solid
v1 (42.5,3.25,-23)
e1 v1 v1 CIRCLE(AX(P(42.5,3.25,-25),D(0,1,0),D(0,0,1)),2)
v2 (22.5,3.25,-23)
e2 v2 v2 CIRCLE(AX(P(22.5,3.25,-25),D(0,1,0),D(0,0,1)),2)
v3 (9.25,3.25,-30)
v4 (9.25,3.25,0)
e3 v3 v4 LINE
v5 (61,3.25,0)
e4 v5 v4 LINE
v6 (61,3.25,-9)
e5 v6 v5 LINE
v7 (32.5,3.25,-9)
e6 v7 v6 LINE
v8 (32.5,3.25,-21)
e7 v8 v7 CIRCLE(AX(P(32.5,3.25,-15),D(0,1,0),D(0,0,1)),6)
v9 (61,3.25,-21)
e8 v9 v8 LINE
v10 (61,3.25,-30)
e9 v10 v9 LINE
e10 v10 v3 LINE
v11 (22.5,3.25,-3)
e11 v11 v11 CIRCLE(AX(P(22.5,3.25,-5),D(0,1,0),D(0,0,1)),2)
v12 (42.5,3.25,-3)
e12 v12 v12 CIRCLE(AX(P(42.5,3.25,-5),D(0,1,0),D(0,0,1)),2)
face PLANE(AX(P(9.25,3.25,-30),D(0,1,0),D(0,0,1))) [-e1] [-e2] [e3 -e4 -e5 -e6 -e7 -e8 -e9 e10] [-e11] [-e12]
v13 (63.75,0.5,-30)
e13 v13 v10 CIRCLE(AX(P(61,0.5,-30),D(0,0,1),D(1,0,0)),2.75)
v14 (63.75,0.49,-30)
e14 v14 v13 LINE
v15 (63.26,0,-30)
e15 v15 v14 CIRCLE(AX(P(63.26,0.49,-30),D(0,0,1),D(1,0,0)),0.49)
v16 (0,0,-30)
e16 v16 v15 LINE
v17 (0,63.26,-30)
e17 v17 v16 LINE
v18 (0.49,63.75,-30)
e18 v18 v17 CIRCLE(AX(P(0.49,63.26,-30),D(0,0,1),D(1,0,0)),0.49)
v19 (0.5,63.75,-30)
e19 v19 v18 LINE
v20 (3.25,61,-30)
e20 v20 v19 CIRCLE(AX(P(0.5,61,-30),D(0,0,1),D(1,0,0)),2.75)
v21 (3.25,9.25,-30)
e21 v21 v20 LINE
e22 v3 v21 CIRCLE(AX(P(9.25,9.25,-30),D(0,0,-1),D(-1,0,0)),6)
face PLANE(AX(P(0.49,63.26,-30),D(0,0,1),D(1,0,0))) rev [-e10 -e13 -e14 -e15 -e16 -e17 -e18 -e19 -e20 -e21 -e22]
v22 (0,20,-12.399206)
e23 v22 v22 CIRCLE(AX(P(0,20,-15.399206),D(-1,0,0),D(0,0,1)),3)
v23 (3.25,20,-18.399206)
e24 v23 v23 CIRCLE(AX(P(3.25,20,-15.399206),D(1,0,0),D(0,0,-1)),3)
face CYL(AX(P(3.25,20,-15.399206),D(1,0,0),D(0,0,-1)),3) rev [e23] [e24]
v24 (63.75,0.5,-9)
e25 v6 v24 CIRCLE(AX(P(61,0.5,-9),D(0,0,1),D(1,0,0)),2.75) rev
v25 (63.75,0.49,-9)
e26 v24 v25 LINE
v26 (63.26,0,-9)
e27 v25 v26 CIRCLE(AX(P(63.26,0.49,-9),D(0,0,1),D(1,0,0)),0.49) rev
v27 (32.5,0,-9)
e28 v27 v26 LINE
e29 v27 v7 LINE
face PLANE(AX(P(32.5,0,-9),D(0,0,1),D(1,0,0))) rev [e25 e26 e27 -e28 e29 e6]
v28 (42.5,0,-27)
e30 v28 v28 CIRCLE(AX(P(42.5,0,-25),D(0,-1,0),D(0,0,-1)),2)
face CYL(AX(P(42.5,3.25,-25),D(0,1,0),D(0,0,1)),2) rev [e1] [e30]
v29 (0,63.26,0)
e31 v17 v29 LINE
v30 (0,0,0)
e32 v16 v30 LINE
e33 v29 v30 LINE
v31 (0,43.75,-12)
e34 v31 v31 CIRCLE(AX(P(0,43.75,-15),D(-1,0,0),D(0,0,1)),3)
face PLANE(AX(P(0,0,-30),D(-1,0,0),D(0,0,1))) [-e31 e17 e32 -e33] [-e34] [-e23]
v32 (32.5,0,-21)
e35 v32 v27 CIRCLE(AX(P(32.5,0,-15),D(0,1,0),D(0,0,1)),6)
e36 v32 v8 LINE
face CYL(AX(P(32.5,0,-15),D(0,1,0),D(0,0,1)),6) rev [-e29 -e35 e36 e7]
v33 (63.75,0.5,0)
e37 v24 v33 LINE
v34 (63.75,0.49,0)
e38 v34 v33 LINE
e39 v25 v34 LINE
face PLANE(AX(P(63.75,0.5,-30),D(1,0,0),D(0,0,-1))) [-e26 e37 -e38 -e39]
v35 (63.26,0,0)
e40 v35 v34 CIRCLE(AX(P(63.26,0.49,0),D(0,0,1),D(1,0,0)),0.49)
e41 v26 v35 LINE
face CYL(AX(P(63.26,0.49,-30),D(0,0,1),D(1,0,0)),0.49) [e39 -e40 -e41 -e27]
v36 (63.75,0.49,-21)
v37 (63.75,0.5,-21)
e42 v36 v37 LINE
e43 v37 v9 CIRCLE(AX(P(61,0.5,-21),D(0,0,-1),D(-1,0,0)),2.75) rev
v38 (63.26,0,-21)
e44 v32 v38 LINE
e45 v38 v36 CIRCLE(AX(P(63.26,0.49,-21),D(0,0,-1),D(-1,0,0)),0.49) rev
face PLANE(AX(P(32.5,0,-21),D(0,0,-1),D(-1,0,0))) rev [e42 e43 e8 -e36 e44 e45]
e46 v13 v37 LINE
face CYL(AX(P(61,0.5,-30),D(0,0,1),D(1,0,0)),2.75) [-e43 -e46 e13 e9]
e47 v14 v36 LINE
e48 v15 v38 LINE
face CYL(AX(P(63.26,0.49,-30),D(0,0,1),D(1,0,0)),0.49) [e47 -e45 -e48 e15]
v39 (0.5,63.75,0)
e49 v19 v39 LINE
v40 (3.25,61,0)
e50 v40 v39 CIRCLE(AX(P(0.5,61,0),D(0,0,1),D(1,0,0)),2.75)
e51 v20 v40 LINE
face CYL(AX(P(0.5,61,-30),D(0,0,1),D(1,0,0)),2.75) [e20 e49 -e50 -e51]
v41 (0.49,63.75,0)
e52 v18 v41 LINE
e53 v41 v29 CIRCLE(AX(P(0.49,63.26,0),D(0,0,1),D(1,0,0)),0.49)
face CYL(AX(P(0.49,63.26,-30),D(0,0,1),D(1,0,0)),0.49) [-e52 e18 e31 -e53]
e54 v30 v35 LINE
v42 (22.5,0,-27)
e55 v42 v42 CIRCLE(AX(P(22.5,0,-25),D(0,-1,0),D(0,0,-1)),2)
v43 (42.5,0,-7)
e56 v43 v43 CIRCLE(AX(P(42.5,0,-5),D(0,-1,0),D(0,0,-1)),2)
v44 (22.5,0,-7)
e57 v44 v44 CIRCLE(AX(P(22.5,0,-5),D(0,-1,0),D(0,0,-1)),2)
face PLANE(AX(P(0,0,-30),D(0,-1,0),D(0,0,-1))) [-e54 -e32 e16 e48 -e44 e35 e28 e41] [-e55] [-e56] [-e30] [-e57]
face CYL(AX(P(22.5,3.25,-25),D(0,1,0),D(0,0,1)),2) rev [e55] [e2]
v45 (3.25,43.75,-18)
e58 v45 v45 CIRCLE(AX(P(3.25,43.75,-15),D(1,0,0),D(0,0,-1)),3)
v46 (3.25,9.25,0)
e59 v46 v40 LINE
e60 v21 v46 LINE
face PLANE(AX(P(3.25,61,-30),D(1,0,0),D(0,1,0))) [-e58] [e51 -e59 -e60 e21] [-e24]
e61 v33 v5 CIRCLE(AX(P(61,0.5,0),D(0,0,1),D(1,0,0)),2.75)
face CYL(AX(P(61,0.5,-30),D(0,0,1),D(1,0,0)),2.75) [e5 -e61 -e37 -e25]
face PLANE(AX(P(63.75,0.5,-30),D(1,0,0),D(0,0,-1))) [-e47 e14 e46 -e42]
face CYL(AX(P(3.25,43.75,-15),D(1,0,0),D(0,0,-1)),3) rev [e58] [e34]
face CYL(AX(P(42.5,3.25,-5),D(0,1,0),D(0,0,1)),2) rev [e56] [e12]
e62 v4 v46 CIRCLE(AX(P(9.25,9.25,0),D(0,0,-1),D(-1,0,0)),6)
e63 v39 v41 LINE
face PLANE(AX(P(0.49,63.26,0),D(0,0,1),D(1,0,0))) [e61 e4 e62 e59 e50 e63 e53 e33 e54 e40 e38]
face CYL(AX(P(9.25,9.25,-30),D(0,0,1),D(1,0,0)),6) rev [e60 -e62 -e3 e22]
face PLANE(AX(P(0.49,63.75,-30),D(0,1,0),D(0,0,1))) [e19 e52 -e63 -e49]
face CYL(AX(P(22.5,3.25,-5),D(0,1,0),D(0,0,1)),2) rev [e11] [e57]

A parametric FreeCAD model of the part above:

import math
import FreeCAD as App
import Part
import Sketcher

V = App.Vector

doc = App.newDocument("Part")
params = doc.addObject("Spreadsheet::Sheet", "Params")
for row, (alias, value) in enumerate([
    ("sketch1_radius", "6 mm"),
    ("sketch1_radius2", "0.49 mm"),
    ("sketch1_radius3", "2.75 mm"),
    ("sketch1_width", "51.75 mm"),
    ("pad1_length", "30 mm"),
    ("sketch2_diameter", "4 mm"),
    ("hole_diameter", "4 mm"),
    ("hole_depth", "10 mm"),
    ("sketch3_radius", "6 mm"),
    ("sketch4_diameter", "6 mm"),
    ("hole2_diameter", "6 mm"),
    ("hole2_depth", "10 mm"),
], start=1):
    params.set(f"A{row}", alias)
    params.set(f"B{row}", "=" + value)
    params.setAlias(f"B{row}", alias)

body = doc.addObject("PartDesign::Body", "Body")

sketch1 = body.newObject("Sketcher::SketchObject", "Sketch")
sketch1.AttachmentSupport = (doc.getObject("XY_Plane"), [""])
sketch1.MapMode = "FlatFace"
sketch1.addGeometry([
    Part.LineSegment(V(0, 0, 0), V(63.26, 0, 0)),
    Part.ArcOfCircle(Part.Circle(V(63.26, 0.49, 0), V(0, 0, 1), 0.49), math.radians(-90), math.radians(0)),
    Part.LineSegment(V(63.75, 0.49, 0), V(63.75, 0.5, 0)),
    Part.ArcOfCircle(Part.Circle(V(61, 0.5, 0), V(0, 0, 1), 2.75), math.radians(0), math.radians(90)),
    Part.LineSegment(V(61, 3.25, 0), V(9.25, 3.25, 0)),
    Part.ArcOfCircle(Part.Circle(V(9.25, 9.25, 0), V(0, 0, 1), 6), math.radians(180), math.radians(270)),
    Part.LineSegment(V(3.25, 9.25, 0), V(3.25, 61, 0)),
    Part.ArcOfCircle(Part.Circle(V(0.5, 61, 0), V(0, 0, 1), 2.75), math.radians(0), math.radians(90)),
    Part.LineSegment(V(0.5, 63.75, 0), V(0.49, 63.75, 0)),
    Part.ArcOfCircle(Part.Circle(V(0.49, 63.26, 0), V(0, 0, 1), 0.49), math.radians(90), math.radians(180)),
    Part.LineSegment(V(0, 63.26, 0), V(0, 0, 0)),
], False)
sketch1.addConstraint([
    Sketcher.Constraint("Tangent", 0, 2, 1, 1),
    Sketcher.Constraint("Tangent", 1, 2, 2, 1),
    Sketcher.Constraint("Tangent", 2, 2, 3, 1),
    Sketcher.Constraint("Tangent", 3, 2, 4, 1),
    Sketcher.Constraint("Tangent", 4, 2, 5, 2),
    Sketcher.Constraint("Tangent", 5, 1, 6, 1),
    Sketcher.Constraint("Tangent", 6, 2, 7, 1),
    Sketcher.Constraint("Tangent", 7, 2, 8, 1),
    Sketcher.Constraint("Tangent", 8, 2, 9, 1),
    Sketcher.Constraint("Tangent", 9, 2, 10, 1),
    Sketcher.Constraint("Coincident", 10, 2, 0, 1),
    Sketcher.Constraint("Horizontal", 0),
    Sketcher.Constraint("Vertical", 2),
    Sketcher.Constraint("Horizontal", 4),
    Sketcher.Constraint("Vertical", 6),
    Sketcher.Constraint("Horizontal", 8),
    Sketcher.Constraint("Vertical", 10),
    Sketcher.Constraint("Coincident", 10, 2, -1, 1),
    Sketcher.Constraint("Equal", 3, 7),
    Sketcher.Constraint("Equal", 1, 9),
    Sketcher.Constraint("Equal", 8, 2),
    Sketcher.Constraint("Equal", 4, 6),
    Sketcher.Constraint("Radius", 5, 6.0),
    Sketcher.Constraint("Radius", 1, 0.49),
    Sketcher.Constraint("Radius", 3, 2.75),
    Sketcher.Constraint("DistanceX", -1, 1, 3, 3, 61.0),
    Sketcher.Constraint("DistanceX", 4, 2, 4, 1, 51.75),
])
sketch1.setExpression("Constraints[22]", "Params.sketch1_radius")
sketch1.setExpression("Constraints[23]", "Params.sketch1_radius2")
sketch1.setExpression("Constraints[24]", "Params.sketch1_radius3")
sketch1.setExpression("Constraints[26]", "Params.sketch1_width")
pad1 = body.newObject("PartDesign::Pad", "Pad")
pad1.Profile = sketch1
pad1.setExpression("Length", "Params.pad1_length")
pad1.Reversed = True

sketch2 = body.newObject("Sketcher::SketchObject", "Sketch001")
sketch2.AttachmentSupport = (doc.getObject("XZ_Plane"), [""])
sketch2.MapMode = "FlatFace"
sketch2.AttachmentOffset = App.Placement(V(0, 0, -3.25), App.Rotation())
sketch2.addGeometry([
    Part.Circle(V(22.5, -5, 0), V(0, 0, 1), 2),
    Part.Circle(V(22.5, -25, 0), V(0, 0, 1), 2),
    Part.Circle(V(42.5, -25, 0), V(0, 0, 1), 2),
    Part.Circle(V(42.5, -5, 0), V(0, 0, 1), 2),
], False)
sketch2.addConstraint([
    Sketcher.Constraint("Equal", 0, 1),
    Sketcher.Constraint("Equal", 1, 2),
    Sketcher.Constraint("Equal", 2, 3),
    Sketcher.Constraint("Horizontal", 1, 3, 2, 3),
    Sketcher.Constraint("Horizontal", 0, 3, 3, 3),
    Sketcher.Constraint("Vertical", 0, 3, 1, 3),
    Sketcher.Constraint("Vertical", 2, 3, 3, 3),
    Sketcher.Constraint("Diameter", 0, 4.0),
    Sketcher.Constraint("DistanceY", 0, 3, -1, 1, 5.0),
    Sketcher.Constraint("DistanceY", 1, 3, -1, 1, 25.0),
    Sketcher.Constraint("DistanceX", 1, 3, 2, 3, 20.0),
    Sketcher.Constraint("DistanceX", -1, 1, 0, 3, 22.5),
])
sketch2.setExpression("Constraints[7]", "Params.sketch2_diameter")
doc.recompute()
hole = body.newObject("PartDesign::Hole", "Hole")
hole.Profile = sketch2
hole.ThreadType = "None"
hole.setExpression("Diameter", "Params.hole_diameter")
hole.DepthType = "Dimension"
hole.setExpression("Depth", "Params.hole_depth")
hole.DrillPoint = "Angled"
hole.DrillPointAngle = 118
hole.Reversed = True

sketch3 = body.newObject("Sketcher::SketchObject", "Sketch002")
sketch3.AttachmentSupport = (doc.getObject("XZ_Plane"), [""])
sketch3.MapMode = "FlatFace"
sketch3.AttachmentOffset = App.Placement(V(0, 0, -3.25), App.Rotation())
sketch3.addGeometry([
    Part.LineSegment(V(32.5, -9, 0), V(66.867268, -9, 0)),
    Part.LineSegment(V(66.867268, -9, 0), V(66.867268, -21, 0)),
    Part.LineSegment(V(66.867268, -21, 0), V(32.5, -21, 0)),
    Part.ArcOfCircle(Part.Circle(V(32.5, -15, 0), V(0, 0, 1), 6), math.radians(90), math.radians(270)),
], False)
sketch3.addConstraint([
    Sketcher.Constraint("Coincident", 0, 2, 1, 1),
    Sketcher.Constraint("Coincident", 1, 2, 2, 1),
    Sketcher.Constraint("Tangent", 2, 2, 3, 2),
    Sketcher.Constraint("Tangent", 3, 1, 0, 1),
    Sketcher.Constraint("Horizontal", 0),
    Sketcher.Constraint("Vertical", 1),
    Sketcher.Constraint("Horizontal", 2),
    Sketcher.Constraint("Radius", 3, 6.0),
    Sketcher.Constraint("DistanceY", 3, 3, -1, 1, 15.0),
    Sketcher.Constraint("DistanceX", -1, 1, 3, 3, 32.5),
    Sketcher.Constraint("DistanceX", 0, 1, 0, 2, 34.367268),
])
sketch3.setExpression("Constraints[7]", "Params.sketch3_radius")
pocket1 = body.newObject("PartDesign::Pocket", "Pocket")
pocket1.Profile = sketch3
pocket1.Type = "ThroughAll"
pocket1.Reversed = True

sketch4 = body.newObject("Sketcher::SketchObject", "Sketch003")
sketch4.AttachmentSupport = (doc.getObject("YZ_Plane"), [""])
sketch4.MapMode = "FlatFace"
sketch4.AttachmentOffset = App.Placement(V(0, 0, 3.25), App.Rotation())
sketch4.addGeometry([
    Part.Circle(V(43.75, -15, 0), V(0, 0, 1), 3),
    Part.Circle(V(20, -15.399206, 0), V(0, 0, 1), 3),
], False)
sketch4.addConstraint([
    Sketcher.Constraint("Equal", 0, 1),
    Sketcher.Constraint("Diameter", 0, 6.0),
    Sketcher.Constraint("DistanceY", 0, 3, -1, 1, 15.0),
    Sketcher.Constraint("DistanceX", -1, 1, 1, 3, 20.0),
    Sketcher.Constraint("DistanceX", -1, 1, 0, 3, 43.75),
    Sketcher.Constraint("DistanceY", 1, 3, -1, 1, 15.399206),
])
sketch4.setExpression("Constraints[1]", "Params.sketch4_diameter")
doc.recompute()
hole2 = body.newObject("PartDesign::Hole", "Hole001")
hole2.Profile = sketch4
hole2.ThreadType = "None"
hole2.setExpression("Diameter", "Params.hole2_diameter")
hole2.DepthType = "Dimension"
hole2.setExpression("Depth", "Params.hole2_depth")
hole2.DrillPoint = "Angled"
hole2.DrillPointAngle = 118

doc.recompute()
